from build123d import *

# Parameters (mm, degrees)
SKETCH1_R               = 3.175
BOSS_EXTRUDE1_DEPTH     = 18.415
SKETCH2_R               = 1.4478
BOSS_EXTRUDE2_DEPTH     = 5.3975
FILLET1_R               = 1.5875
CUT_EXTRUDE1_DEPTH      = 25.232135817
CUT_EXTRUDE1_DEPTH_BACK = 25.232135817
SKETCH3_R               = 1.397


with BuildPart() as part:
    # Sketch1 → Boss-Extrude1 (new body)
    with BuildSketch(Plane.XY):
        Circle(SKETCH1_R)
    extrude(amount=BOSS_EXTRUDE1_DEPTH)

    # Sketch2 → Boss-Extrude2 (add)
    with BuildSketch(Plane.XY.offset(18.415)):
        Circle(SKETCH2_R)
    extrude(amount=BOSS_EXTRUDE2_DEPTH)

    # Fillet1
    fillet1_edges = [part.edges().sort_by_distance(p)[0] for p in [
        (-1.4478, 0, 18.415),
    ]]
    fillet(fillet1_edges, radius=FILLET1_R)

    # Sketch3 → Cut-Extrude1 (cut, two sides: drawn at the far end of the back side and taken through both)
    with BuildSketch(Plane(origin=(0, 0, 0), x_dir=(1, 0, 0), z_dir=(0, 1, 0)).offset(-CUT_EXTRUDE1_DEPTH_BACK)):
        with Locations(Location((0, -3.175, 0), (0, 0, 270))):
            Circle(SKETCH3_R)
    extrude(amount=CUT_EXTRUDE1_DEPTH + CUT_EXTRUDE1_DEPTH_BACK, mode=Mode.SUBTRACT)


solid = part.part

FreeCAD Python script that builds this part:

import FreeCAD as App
import Part
import Sketcher
from FreeCAD import Vector
Q = App.Units.Quantity


def edges_at(feature, points):
    """Names of the edges that pass closest to the given points."""
    edges = feature.Shape.Edges
    near = lambda p: min(range(len(edges)), key=lambda i: edges[i].distToShape(Part.Vertex(*p))[0])
    return sorted({f"Edge{near(p) + 1}" for p in points})

doc = App.newDocument("Part")
body = doc.addObject("PartDesign::Body", "Body")

# Sketch on XY plane
sketch1 = body.newObject("Sketcher::SketchObject", "Sketch")
sketch1.AttachmentSupport = (doc.getObject("XY_Plane"), [""])
sketch1.MapMode = "FlatFace"
sketch1.addGeometry(Part.Circle(Vector(0, 0, 0), Vector(0, 0, 1), 3.175), False)
sketch1.addConstraint(Sketcher.Constraint("Coincident", 0, 3, -1, 1))
sketch1.addConstraint(Sketcher.Constraint("Diameter", 0, Q("0.25 in")))
pad1 = body.newObject("PartDesign::Pad", "Pad")
pad1.Profile = sketch1
pad1.Length = Q("0.725 in")

# Sketch on XY plane
sketch2 = body.newObject("Sketcher::SketchObject", "Sketch001")
sketch2.AttachmentSupport = (doc.getObject("XY_Plane"), [""])
sketch2.MapMode = "FlatFace"
sketch2.AttachmentOffset = App.Placement(Vector(0, 0, 0.725 * 25.4), App.Rotation())
sketch2.addGeometry(Part.Circle(Vector(0, 0, 0), Vector(0, 0, 1), 1.4478), False)
sketch2.addConstraint(Sketcher.Constraint("Coincident", 0, 3, -1, 1))
sketch2.addConstraint(Sketcher.Constraint("Diameter", 0, Q("0.114 in")))
pad2 = body.newObject("PartDesign::Pad", "Pad001")
pad2.Profile = sketch2
pad2.Length = Q("0.2125 in")
doc.recompute()

fillet = body.newObject("PartDesign::Fillet", "Fillet")
fillet.Base = (pad2, edges_at(pad2, [(-1.448, 0, 18.415)]))
fillet.Radius = Q("0.0625 in")

# Sketch on XZ plane
sketch3 = body.newObject("Sketcher::SketchObject", "Sketch002")
sketch3.AttachmentSupport = (doc.getObject("XZ_Plane"), [""])
sketch3.MapMode = "FlatFace"
sketch3.addGeometry(Part.Circle(Vector(0, 3.175, 0), Vector(0, 0, 1), 1.397), False)
sketch3.addConstraint(Sketcher.Constraint("PointOnObject", 0, 3, -2))
sketch3.addConstraint(Sketcher.Constraint("Diameter", 0, Q("0.11 in")))
sketch3.addConstraint(Sketcher.Constraint("DistanceY", -1, 1, 0, 3, Q("0.125 in")))
pocket1 = body.newObject("PartDesign::Pocket", "Pocket")
pocket1.Profile = sketch3
pocket1.Type = "ThroughAll"
pocket1.Midplane = True

doc.recompute()
